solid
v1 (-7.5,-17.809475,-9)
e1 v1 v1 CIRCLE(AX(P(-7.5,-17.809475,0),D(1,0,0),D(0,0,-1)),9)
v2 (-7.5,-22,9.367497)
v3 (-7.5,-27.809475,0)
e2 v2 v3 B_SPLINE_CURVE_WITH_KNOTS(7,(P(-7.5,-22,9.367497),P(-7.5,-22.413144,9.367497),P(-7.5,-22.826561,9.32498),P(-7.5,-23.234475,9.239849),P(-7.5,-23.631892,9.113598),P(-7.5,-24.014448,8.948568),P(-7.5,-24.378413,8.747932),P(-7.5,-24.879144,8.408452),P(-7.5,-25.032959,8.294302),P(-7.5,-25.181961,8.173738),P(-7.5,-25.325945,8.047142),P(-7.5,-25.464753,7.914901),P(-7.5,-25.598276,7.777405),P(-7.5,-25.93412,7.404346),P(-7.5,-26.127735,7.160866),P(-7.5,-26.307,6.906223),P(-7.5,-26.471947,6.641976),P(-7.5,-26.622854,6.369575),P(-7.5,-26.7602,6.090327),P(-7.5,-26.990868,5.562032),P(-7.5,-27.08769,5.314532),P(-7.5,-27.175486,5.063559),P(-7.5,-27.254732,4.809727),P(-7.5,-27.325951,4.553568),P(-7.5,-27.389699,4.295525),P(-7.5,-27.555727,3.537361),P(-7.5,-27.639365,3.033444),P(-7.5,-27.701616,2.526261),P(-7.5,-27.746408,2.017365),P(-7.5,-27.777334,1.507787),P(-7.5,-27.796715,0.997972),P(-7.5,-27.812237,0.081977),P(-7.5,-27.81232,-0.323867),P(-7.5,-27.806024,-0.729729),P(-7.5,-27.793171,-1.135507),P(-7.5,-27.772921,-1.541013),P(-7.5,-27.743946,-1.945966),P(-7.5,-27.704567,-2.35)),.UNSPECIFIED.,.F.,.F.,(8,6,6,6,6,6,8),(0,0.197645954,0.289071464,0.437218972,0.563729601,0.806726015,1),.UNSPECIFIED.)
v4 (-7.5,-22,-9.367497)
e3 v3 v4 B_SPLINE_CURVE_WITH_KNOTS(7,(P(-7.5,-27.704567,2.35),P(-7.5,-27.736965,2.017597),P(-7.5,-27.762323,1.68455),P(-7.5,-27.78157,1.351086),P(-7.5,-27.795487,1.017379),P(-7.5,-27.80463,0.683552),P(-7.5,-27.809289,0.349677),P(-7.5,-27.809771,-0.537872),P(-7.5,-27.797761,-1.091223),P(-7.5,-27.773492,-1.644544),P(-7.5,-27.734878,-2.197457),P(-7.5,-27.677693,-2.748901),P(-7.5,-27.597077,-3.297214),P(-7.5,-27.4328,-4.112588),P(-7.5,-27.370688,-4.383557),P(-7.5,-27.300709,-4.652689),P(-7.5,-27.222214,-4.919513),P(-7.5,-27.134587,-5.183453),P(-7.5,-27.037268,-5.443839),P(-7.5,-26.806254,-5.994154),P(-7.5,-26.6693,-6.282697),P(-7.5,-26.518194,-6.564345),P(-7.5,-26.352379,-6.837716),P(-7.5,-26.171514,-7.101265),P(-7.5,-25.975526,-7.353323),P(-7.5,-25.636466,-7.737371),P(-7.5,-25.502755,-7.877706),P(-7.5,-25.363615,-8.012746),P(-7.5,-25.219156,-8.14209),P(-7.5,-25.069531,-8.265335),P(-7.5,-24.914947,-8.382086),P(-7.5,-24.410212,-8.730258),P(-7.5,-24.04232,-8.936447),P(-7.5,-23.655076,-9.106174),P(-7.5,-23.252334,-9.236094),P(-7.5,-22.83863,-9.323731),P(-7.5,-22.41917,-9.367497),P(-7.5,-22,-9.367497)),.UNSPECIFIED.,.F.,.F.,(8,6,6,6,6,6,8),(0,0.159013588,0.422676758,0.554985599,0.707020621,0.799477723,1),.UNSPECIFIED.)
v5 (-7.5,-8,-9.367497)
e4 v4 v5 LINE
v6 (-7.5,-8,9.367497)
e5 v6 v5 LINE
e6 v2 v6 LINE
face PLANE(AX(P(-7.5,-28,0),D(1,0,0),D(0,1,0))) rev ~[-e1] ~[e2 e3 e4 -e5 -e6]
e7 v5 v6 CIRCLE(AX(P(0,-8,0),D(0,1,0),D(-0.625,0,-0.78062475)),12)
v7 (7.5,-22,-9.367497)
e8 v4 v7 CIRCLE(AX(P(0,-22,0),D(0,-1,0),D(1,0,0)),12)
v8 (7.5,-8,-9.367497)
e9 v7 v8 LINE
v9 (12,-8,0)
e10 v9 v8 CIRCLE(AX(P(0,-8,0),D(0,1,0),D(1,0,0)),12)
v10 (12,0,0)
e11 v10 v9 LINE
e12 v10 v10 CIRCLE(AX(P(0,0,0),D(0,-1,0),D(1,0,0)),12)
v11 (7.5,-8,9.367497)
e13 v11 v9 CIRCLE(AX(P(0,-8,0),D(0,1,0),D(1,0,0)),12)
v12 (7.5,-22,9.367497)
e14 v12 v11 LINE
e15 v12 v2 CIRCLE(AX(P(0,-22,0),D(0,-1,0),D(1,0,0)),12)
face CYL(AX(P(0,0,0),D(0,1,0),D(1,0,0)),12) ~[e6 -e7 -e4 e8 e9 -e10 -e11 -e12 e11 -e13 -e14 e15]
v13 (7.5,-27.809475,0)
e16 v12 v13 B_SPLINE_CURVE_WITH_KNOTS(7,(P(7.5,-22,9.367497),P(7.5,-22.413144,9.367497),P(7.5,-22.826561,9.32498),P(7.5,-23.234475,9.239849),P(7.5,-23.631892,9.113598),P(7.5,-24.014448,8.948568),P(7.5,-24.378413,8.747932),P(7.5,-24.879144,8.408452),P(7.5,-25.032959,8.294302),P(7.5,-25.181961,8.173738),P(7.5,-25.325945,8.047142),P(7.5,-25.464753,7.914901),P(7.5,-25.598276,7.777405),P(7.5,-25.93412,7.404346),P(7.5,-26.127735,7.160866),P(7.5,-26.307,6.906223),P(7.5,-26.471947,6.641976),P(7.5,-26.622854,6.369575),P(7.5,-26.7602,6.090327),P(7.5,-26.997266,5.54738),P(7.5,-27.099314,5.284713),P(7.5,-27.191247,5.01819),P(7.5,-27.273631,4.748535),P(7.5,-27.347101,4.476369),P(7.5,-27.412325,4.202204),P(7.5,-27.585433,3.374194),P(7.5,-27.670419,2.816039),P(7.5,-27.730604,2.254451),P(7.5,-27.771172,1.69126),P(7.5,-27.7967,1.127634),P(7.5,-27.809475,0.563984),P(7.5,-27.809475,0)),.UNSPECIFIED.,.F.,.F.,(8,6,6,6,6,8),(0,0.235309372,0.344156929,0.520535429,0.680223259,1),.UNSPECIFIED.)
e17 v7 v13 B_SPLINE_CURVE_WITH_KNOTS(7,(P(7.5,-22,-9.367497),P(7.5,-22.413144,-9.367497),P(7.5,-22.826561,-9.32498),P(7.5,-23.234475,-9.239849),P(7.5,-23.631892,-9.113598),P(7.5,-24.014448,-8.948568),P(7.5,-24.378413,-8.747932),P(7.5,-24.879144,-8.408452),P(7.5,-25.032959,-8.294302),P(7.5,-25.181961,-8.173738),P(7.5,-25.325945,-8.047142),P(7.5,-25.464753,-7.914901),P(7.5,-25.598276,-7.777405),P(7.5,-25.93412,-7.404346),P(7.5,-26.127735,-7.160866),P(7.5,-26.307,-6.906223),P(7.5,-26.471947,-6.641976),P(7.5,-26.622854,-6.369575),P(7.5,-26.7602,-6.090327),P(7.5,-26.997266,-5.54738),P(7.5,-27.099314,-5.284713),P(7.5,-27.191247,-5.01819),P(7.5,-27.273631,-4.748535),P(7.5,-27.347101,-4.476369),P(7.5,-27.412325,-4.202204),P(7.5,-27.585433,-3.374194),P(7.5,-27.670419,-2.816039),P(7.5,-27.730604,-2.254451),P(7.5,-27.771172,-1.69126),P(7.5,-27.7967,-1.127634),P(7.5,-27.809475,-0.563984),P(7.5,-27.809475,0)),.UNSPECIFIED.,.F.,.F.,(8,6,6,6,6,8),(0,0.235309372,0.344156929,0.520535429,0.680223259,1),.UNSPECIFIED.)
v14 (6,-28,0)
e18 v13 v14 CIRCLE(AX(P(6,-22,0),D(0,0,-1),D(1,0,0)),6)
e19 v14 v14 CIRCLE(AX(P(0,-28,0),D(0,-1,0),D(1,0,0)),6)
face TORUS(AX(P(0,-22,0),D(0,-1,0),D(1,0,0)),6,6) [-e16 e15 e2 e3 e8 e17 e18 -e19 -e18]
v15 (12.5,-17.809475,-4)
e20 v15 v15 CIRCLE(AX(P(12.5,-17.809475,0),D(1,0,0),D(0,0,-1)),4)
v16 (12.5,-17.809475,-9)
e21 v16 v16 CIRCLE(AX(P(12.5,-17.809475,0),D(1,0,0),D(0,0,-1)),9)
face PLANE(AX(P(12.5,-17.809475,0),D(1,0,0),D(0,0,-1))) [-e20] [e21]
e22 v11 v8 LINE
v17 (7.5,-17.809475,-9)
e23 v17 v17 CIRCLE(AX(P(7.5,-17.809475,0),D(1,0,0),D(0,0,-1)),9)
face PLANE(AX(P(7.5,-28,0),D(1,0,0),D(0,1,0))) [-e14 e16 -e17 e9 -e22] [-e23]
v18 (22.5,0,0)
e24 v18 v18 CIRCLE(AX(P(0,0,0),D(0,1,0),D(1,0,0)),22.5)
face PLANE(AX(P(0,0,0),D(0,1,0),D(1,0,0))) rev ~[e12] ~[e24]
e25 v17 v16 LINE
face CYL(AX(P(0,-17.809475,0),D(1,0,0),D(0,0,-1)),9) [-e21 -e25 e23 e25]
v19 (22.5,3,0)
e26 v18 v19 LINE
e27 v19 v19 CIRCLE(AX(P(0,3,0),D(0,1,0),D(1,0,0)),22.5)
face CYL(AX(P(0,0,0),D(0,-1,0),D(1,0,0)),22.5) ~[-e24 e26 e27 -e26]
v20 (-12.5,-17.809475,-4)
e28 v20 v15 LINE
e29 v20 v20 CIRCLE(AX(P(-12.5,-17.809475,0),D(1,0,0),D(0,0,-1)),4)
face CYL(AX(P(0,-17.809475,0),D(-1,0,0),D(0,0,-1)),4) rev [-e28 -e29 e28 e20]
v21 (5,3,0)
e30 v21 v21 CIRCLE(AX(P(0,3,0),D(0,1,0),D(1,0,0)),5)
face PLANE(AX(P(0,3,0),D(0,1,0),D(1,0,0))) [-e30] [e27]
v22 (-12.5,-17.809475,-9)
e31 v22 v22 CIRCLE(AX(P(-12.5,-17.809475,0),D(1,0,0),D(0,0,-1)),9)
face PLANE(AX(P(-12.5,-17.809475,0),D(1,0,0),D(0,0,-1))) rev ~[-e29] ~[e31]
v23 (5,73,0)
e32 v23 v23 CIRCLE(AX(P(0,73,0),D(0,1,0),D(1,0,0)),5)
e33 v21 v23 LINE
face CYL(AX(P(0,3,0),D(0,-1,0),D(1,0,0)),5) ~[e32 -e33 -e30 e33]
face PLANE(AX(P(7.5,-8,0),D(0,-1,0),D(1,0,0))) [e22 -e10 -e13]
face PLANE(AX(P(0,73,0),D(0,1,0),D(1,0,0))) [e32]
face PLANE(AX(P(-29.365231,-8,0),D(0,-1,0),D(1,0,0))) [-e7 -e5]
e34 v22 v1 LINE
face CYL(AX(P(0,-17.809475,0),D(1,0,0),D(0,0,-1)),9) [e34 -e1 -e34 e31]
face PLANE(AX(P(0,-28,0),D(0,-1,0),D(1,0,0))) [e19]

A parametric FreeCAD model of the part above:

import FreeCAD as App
import Part
import Sketcher


def edges_at(feature, points):
    """Names of the edges that pass closest to the given points."""
    edges = feature.Shape.Edges
    near = lambda p: min(range(len(edges)), key=lambda i: edges[i].distToShape(Part.Vertex(*p))[0])
    return sorted({f"Edge{near(p) + 1}" for p in points})


def add_polygon(sketch, points):
    """Adds a closed chain of lines whose ends are joined by coincident constraints."""
    first, n = sketch.GeometryCount, len(points)
    for a, b in zip(points, points[1:] + points[:1]):
        sketch.addGeometry(Part.LineSegment(App.Vector(*a, 0), App.Vector(*b, 0)), False)
    for i in range(n):
        sketch.addConstraint(Sketcher.Constraint("Coincident", first + i, 2, first + (i + 1) % n, 1))

doc = App.newDocument("Part")
body = doc.addObject("PartDesign::Body", "Body")

# Sketch on XZ plane
sketch1 = doc.addObject("Sketcher::SketchObject", "Sketch")
body.addObject(sketch1)
sketch1.AttachmentSupport = (doc.XZ_Plane, [""])
sketch1.MapMode = "FlatFace"
sketch1.addGeometry(Part.Circle(App.Vector(0, 0, 0), App.Vector(0, 0, 1), 22), False)
sketch1.addConstraint(Sketcher.Constraint("Coincident", 0, 3, -1, 1))
sketch1.addConstraint(Sketcher.Constraint("Diameter", 0, 45.0))
pad1 = doc.addObject("PartDesign::Pad", "Pad")
body.addObject(pad1)
pad1.Profile = sketch1
pad1.Length = 3
pad1.Reversed = True

# Sketch on XZ plane
sketch2 = doc.addObject("Sketcher::SketchObject", "Sketch001")
body.addObject(sketch2)
sketch2.AttachmentSupport = (doc.XZ_Plane, [""])
sketch2.MapMode = "FlatFace"
sketch2.AttachmentOffset = App.Placement(App.Vector(0, 0, -3), App.Rotation())
sketch2.addGeometry(Part.Circle(App.Vector(0, 0, 0), App.Vector(0, 0, 1), 5), False)
sketch2.addConstraint(Sketcher.Constraint("Coincident", 0, 3, -1, 1))
sketch2.addConstraint(Sketcher.Constraint("Diameter", 0, 10.0))
pad2 = doc.addObject("PartDesign::Pad", "Pad001")
body.addObject(pad2)
pad2.Profile = sketch2
pad2.Length = 70
pad2.Reversed = True

# Sketch on XZ plane
sketch3 = doc.addObject("Sketcher::SketchObject", "Sketch002")
body.addObject(sketch3)
sketch3.AttachmentSupport = (doc.XZ_Plane, [""])
sketch3.MapMode = "FlatFace"
sketch3.addGeometry(Part.Circle(App.Vector(0, 0, 0), App.Vector(0, 0, 1), 12), False)
sketch3.addConstraint(Sketcher.Constraint("Coincident", 0, 3, -1, 1))
sketch3.addConstraint(Sketcher.Constraint("Diameter", 0, 24.0))
pad3 = doc.addObject("PartDesign::Pad", "Pad002")
body.addObject(pad3)
pad3.Profile = sketch3
pad3.Length = 28
doc.recompute()

fillet = doc.addObject("PartDesign::Fillet", "Fillet")
body.addObject(fillet)
fillet.Base = (pad3, edges_at(pad3, [(-12, -28, 0)]))
fillet.Radius = 6

# Sketch on XY plane
sketch4 = doc.addObject("Sketcher::SketchObject", "Sketch003")
body.addObject(sketch4)
sketch4.AttachmentSupport = (doc.XY_Plane, [""])
sketch4.MapMode = "FlatFace"
add_polygon(sketch4, [(8, -8), (8, -28), (29, -28), (29, -8)])  # lines 0-3
add_polygon(sketch4, [(-29, -8), (-29, -28), (-8, -28), (-8, -8)])  # lines 4-7
sketch4.addConstraint(Sketcher.Constraint("Vertical", 0))
sketch4.addConstraint(Sketcher.Constraint("Horizontal", 1))
sketch4.addConstraint(Sketcher.Constraint("Vertical", 2))
sketch4.addConstraint(Sketcher.Constraint("Horizontal", 3))
sketch4.addConstraint(Sketcher.Constraint("Vertical", 4))
sketch4.addConstraint(Sketcher.Constraint("Horizontal", 5))
sketch4.addConstraint(Sketcher.Constraint("Vertical", 6))
sketch4.addConstraint(Sketcher.Constraint("Horizontal", 7))
sketch4.addConstraint(Sketcher.Constraint("Symmetric", 1, 2, 4, 2, -2))
sketch4.addConstraint(Sketcher.Constraint("Symmetric", 3, 2, 6, 2, -2))
sketch4.addConstraint(Sketcher.Constraint("DistanceY", 0, 2, 0, 1, 20.0))
sketch4.addConstraint(Sketcher.Constraint("DistanceY", 0, 2, -1, 1, 28.0))
sketch4.addConstraint(Sketcher.Constraint("DistanceX", 5, 2, 0, 2, 15.0))
sketch4.addConstraint(Sketcher.Constraint("DistanceX", 1, 1, 1, 2, 21.865231))
pocket1 = doc.addObject("PartDesign::Pocket", "Pocket")
body.addObject(pocket1)
pocket1.Profile = sketch4
pocket1.Type = "ThroughAll"
pocket1.Midplane = True

# Sketch on YZ plane
sketch5 = doc.addObject("Sketcher::SketchObject", "Sketch004")
body.addObject(sketch5)
sketch5.AttachmentSupport = (doc.YZ_Plane, [""])
sketch5.MapMode = "FlatFace"
sketch5.AttachmentOffset = App.Placement(App.Vector(0, 0, 7.5), App.Rotation())
sketch5.addGeometry(Part.Circle(App.Vector(-17.8, 0, 0), App.Vector(0, 0, 1), 4), False)
sketch5.addConstraint(Sketcher.Constraint("PointOnObject", 0, 3, -1))
sketch5.addConstraint(Sketcher.Constraint("Diameter", 0, 8.0))
sketch5.addConstraint(Sketcher.Constraint("DistanceX", 0, 3, -1, 1, 17.809475))
pocket2 = doc.addObject("PartDesign::Pocket", "Pocket001")
body.addObject(pocket2)
pocket2.Profile = sketch5
pocket2.Type = "ThroughAll"
pocket2.Midplane = True

# Sketch on YZ plane
sketch6 = doc.addObject("Sketcher::SketchObject", "Sketch005")
body.addObject(sketch6)
sketch6.AttachmentSupport = (doc.YZ_Plane, [""])
sketch6.MapMode = "FlatFace"
sketch6.addGeometry(Part.Circle(App.Vector(-17.8, 0, 0), App.Vector(0, 0, 1), 9), False)
sketch6.addGeometry(Part.Circle(App.Vector(-17.8, 0, 0), App.Vector(0, 0, 1), 4), False)
sketch6.addConstraint(Sketcher.Constraint("Coincident", 1, 3, 0, 3))
sketch6.addConstraint(Sketcher.Constraint("PointOnObject", 0, 3, -1))
sketch6.addConstraint(Sketcher.Constraint("Diameter", 0, 18.0))
sketch6.addConstraint(Sketcher.Constraint("Diameter", 1, 8.0))
sketch6.addConstraint(Sketcher.Constraint("DistanceX", 0, 3, -1, 1, 17.809475))
pad4 = doc.addObject("PartDesign::Pad", "Pad003")
body.addObject(pad4)
pad4.Profile = sketch6
pad4.Length = 25
pad4.Midplane = True

doc.recompute()
